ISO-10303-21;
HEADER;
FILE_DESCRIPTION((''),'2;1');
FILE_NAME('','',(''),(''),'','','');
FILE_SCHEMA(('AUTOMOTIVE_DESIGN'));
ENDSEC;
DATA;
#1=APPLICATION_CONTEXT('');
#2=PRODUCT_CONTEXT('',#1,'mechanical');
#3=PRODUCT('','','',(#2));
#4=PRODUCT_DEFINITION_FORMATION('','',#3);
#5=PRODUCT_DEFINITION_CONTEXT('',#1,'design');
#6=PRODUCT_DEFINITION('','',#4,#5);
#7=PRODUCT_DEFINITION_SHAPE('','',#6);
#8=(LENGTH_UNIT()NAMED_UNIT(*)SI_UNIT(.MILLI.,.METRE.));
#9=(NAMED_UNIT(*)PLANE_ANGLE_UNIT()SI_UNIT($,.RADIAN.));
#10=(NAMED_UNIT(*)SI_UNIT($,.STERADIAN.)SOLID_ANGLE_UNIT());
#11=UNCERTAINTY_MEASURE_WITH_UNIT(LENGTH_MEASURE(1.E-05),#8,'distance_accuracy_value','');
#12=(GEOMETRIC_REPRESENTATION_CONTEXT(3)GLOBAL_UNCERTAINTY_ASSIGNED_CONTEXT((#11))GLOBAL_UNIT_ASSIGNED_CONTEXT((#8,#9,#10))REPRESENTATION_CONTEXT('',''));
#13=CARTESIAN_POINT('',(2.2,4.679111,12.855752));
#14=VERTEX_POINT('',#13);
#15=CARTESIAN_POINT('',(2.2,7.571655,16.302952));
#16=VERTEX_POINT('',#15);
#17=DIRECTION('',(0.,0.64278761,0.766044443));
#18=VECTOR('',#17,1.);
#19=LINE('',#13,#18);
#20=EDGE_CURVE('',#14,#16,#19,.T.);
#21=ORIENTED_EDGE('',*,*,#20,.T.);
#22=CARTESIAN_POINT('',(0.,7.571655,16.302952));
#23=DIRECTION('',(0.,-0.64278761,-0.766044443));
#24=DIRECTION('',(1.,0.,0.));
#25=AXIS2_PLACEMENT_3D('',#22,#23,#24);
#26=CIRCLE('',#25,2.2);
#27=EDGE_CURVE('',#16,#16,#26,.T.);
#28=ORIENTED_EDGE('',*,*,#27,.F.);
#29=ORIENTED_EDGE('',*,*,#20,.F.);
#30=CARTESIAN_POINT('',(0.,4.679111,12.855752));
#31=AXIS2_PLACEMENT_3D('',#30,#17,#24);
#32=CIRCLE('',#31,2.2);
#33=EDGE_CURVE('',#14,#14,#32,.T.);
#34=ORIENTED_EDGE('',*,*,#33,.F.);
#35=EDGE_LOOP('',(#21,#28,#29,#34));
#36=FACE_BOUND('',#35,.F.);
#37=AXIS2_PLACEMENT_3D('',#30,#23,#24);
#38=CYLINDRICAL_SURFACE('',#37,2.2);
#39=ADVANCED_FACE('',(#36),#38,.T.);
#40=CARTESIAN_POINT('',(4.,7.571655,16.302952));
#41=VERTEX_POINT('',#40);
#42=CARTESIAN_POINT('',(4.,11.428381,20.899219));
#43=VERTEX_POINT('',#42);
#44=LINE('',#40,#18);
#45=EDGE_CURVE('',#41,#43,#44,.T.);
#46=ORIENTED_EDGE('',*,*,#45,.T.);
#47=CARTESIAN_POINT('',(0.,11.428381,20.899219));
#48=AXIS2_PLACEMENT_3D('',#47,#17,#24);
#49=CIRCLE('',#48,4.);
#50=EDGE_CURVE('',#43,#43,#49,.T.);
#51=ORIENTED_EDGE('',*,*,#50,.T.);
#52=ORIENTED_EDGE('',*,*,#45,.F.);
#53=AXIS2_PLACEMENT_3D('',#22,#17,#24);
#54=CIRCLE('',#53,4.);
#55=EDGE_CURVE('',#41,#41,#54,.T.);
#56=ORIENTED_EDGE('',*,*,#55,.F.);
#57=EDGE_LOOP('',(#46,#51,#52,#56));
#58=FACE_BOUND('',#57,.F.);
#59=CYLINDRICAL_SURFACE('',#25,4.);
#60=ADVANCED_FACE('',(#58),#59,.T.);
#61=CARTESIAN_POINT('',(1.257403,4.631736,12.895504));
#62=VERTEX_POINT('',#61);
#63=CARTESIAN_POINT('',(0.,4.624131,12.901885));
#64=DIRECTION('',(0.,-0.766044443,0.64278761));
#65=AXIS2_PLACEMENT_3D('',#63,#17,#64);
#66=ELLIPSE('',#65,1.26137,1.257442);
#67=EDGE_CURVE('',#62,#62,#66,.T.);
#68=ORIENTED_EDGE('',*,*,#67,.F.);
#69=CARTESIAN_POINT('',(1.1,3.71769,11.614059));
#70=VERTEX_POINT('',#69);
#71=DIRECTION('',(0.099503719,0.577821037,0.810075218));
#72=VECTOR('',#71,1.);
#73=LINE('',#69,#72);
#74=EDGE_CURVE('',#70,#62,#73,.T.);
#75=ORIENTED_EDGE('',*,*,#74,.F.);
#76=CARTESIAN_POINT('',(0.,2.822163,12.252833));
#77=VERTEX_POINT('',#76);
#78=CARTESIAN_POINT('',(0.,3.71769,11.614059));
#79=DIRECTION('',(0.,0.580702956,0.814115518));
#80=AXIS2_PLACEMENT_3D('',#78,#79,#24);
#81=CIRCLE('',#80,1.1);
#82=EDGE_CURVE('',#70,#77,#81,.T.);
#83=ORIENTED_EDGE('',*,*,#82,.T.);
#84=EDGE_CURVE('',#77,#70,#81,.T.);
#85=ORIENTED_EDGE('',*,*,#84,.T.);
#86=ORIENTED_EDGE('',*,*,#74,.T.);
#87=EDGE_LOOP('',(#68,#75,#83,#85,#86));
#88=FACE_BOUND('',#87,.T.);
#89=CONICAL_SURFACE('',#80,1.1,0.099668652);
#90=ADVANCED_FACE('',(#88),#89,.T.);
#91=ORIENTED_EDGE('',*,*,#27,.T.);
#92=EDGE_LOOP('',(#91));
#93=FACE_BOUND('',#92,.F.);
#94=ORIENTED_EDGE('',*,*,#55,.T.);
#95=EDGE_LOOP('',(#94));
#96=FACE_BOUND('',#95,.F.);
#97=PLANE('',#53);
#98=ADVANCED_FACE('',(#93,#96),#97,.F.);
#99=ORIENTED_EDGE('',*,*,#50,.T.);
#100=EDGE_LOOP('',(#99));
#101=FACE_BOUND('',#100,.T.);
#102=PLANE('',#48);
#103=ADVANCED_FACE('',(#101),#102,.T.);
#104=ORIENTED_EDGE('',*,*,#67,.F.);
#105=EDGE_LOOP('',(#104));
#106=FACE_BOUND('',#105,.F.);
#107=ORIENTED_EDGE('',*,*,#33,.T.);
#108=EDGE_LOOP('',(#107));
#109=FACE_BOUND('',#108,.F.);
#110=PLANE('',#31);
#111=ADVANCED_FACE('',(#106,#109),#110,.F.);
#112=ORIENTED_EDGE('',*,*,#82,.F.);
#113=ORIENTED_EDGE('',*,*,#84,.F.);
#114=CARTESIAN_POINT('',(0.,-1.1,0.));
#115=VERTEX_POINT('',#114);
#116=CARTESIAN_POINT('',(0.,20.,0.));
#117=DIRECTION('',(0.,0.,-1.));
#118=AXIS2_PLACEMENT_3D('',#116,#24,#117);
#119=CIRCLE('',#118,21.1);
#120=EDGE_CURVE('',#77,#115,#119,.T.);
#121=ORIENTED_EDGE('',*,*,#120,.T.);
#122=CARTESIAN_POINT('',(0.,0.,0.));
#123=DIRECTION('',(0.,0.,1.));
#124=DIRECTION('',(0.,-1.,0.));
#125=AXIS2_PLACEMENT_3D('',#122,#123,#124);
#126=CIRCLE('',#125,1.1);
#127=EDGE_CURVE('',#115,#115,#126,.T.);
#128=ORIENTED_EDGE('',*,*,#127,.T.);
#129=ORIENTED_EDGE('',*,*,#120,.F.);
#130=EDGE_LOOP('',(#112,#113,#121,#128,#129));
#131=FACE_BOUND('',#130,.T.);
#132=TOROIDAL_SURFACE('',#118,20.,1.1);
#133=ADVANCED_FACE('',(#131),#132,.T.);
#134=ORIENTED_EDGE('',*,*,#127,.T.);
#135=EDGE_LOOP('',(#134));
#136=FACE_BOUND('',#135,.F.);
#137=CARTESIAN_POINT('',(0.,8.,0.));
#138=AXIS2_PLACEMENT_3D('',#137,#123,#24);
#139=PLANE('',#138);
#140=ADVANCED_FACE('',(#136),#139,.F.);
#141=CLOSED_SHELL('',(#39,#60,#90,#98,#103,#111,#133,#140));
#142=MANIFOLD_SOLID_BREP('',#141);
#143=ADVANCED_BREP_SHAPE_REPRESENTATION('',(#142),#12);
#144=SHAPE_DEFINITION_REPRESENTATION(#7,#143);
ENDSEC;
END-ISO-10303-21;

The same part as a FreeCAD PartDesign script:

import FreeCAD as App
import Part
import Sketcher
from FreeCAD import Vector
Q = App.Units.Quantity


def add_polygon(sketch, points):
    """Adds a closed chain of lines whose ends are joined by coincident constraints."""
    first, n = sketch.GeometryCount, len(points)
    for a, b in zip(points, points[1:] + points[:1]):
        sketch.addGeometry(Part.LineSegment(App.Vector(*a, 0), App.Vector(*b, 0)), False)
    for i in range(n):
        sketch.addConstraint(Sketcher.Constraint("Coincident", first + i, 2, first + (i + 1) % n, 1))

doc = App.newDocument("Part")
params = doc.addObject("Spreadsheet::Sheet", "Params")
for row, (alias, value) in enumerate([
    ("sketch1_height", "2 mm"),
    ("sketch1_width", "1.1 mm"),
    ("sketch1_width2", "1.3 mm"),
    ("revolution_angle", "360 deg"),
    ("sketch2_width", "10 mm"),
    ("sketch2_height", "24 mm"),
    ("pad1_length", "22 mm"),
    ("sketch3_width", "10 mm"),
    ("sketch3_height", "24 mm"),
    ("pad2_length", "22 mm"),
    ("sketch4_diameter", "2.2 mm"),
    ("revolution2_angle", "360 deg"),
    ("sketch5_diameter", "8 mm"),
    ("pad3_length", "6 mm"),
    ("sketch6_diameter", "4.4 mm"),
    ("pad4_length", "10 mm"),
], start=1):
    params.set(f"A{row}", alias)
    params.set(f"B{row}", "=" + value)
    params.setAlias(f"B{row}", alias)

body = doc.addObject("PartDesign::Body", "Body")

sketch1 = body.newObject("Sketcher::SketchObject", "Sketch")
sketch1.AttachmentSupport = (doc.getObject("XZ_Plane"), [""])
sketch1.MapMode = "FlatFace"
add_polygon(sketch1, [(0, 0), (1.1, 0), (1.3, 2), (0, 2)])
sketch1.addConstraint([
    Sketcher.Constraint("Horizontal", 0),
    Sketcher.Constraint("Horizontal", 2),
    Sketcher.Constraint("Vertical", 3),
    Sketcher.Constraint("Coincident", 3, 2, -1, 1),
    Sketcher.Constraint("DistanceY", 3, 2, 3, 1, Q("2 mm")),
    Sketcher.Constraint("DistanceX", 0, 1, 0, 2, Q("1.1 mm")),
    Sketcher.Constraint("DistanceX", 2, 2, 2, 1, Q("1.3 mm")),
])
sketch1.setExpression("Constraints[8]", "Params.sketch1_height")
sketch1.setExpression("Constraints[9]", "Params.sketch1_width")
sketch1.setExpression("Constraints[10]", "Params.sketch1_width2")
revolution = body.newObject("PartDesign::Revolution", "Revolution")
revolution.Profile = sketch1
revolution.ReferenceAxis = (sketch1, ["V_Axis"])
revolution.setExpression("Angle", "Params.revolution_angle")
body2 = doc.addObject("PartDesign::Body", "Body001")
doc.recompute()

body.Placement = App.Placement(Vector(0, 0, 0), App.Rotation(Vector(1, 0, 0), 324.5))
boolean = body2.newObject("PartDesign::Boolean", "Boolean")
boolean.Type = "Fuse"
boolean.addObjects([body])
body3 = doc.addObject("PartDesign::Body", "Body002")
doc.recompute()

body2.Placement = App.Placement(Vector(0, 3.71769, 11.614059), App.Rotation(Vector(0, 0, 1), 0))
boolean2 = body3.newObject("PartDesign::Boolean", "Boolean001")
boolean2.Type = "Fuse"
boolean2.addObjects([body2])
body4 = doc.addObject("PartDesign::Body", "Body003")

sketch2 = body4.newObject("Sketcher::SketchObject", "Sketch001")
sketch2.AttachmentSupport = (doc.getObject("XY_Plane003"), [""])
sketch2.MapMode = "FlatFace"
add_polygon(sketch2, [(0, 24), (0, 0), (10, 0), (10, 24)])
sketch2.addConstraint([
    Sketcher.Constraint("Vertical", 0),
    Sketcher.Constraint("Horizontal", 1),
    Sketcher.Constraint("Vertical", 2),
    Sketcher.Constraint("Horizontal", 3),
    Sketcher.Constraint("Coincident", 0, 2, -1, 1),
    Sketcher.Constraint("DistanceX", 1, 1, 1, 2, Q("10 mm")),
    Sketcher.Constraint("DistanceY", 0, 2, 0, 1, Q("24 mm")),
])
sketch2.setExpression("Constraints[9]", "Params.sketch2_width")
sketch2.setExpression("Constraints[10]", "Params.sketch2_height")
pad1 = body4.newObject("PartDesign::Pad", "Pad")
pad1.Profile = sketch2
pad1.setExpression("Length", "Params.pad1_length")
body5 = doc.addObject("PartDesign::Body", "Body004")
doc.recompute()

body4.Placement = App.Placement(Vector(0, 0, 0), App.Rotation(Vector(1, 0, 0), 324.5))
boolean3 = body5.newObject("PartDesign::Boolean", "Boolean002")
boolean3.Type = "Fuse"
boolean3.addObjects([body4])
body6 = doc.addObject("PartDesign::Body", "Body005")
doc.recompute()

body5.Placement = App.Placement(Vector(-5, 0.461228, 13.936871), App.Rotation(Vector(0, 0, 1), 0))
boolean4 = body6.newObject("PartDesign::Boolean", "Boolean003")
boolean4.Type = "Fuse"
boolean4.addObjects([body5])
body7 = doc.addObject("PartDesign::Body", "Body006")

sketch3 = body7.newObject("Sketcher::SketchObject", "Sketch002")
sketch3.AttachmentSupport = (doc.getObject("XY_Plane006"), [""])
sketch3.MapMode = "FlatFace"
add_polygon(sketch3, [(-5, 20), (-5, -4), (5, -4), (5, 20)])
sketch3.addConstraint([
    Sketcher.Constraint("Vertical", 0),
    Sketcher.Constraint("Horizontal", 1),
    Sketcher.Constraint("Vertical", 2),
    Sketcher.Constraint("Horizontal", 3),
    Sketcher.Constraint("DistanceX", 1, 1, 1, 2, Q("10 mm")),
    Sketcher.Constraint("DistanceY", 0, 2, 0, 1, Q("24 mm")),
    Sketcher.Constraint("DistanceX", 0, 2, -1, 1, Q("5 mm")),
    Sketcher.Constraint("DistanceY", 0, 2, -1, 1, Q("4 mm")),
])
sketch3.setExpression("Constraints[8]", "Params.sketch3_width")
sketch3.setExpression("Constraints[9]", "Params.sketch3_height")
pad2 = body7.newObject("PartDesign::Pad", "Pad001")
pad2.Profile = sketch3
pad2.setExpression("Length", "Params.pad2_length")
body8 = doc.addObject("PartDesign::Body", "Body007")

sketch4 = body8.newObject("Sketcher::SketchObject", "Sketch003")
sketch4.AttachmentSupport = (doc.getObject("XZ_Plane007"), [""])
sketch4.MapMode = "FlatFace"
sketch4.addGeometry(Part.Circle(Vector(20, 0, 0), Vector(0, 0, 1), 1.1), False)
sketch4.addConstraint([
    Sketcher.Constraint("PointOnObject", 0, 3, -1),
    Sketcher.Constraint("Diameter", 0, Q("2.2 mm")),
    Sketcher.Constraint("DistanceX", -1, 1, 0, 3, Q("20 mm")),
])
sketch4.setExpression("Constraints[1]", "Params.sketch4_diameter")
revolution2 = body8.newObject("PartDesign::Revolution", "Revolution001")
revolution2.Profile = sketch4
revolution2.ReferenceAxis = (sketch4, ["V_Axis"])
revolution2.setExpression("Angle", "Params.revolution2_angle")
body9 = doc.addObject("PartDesign::Body", "Body008")
doc.recompute()

body8.Placement = App.Placement(Vector(0, 0, 0), App.Rotation(Vector(0, 1, 0), 90))
boolean5 = body9.newObject("PartDesign::Boolean", "Boolean004")
boolean5.Type = "Fuse"
boolean5.addObjects([body8])
body10 = doc.addObject("PartDesign::Body", "Body009")
doc.recompute()

body9.Placement = App.Placement(Vector(0, 20, 0), App.Rotation(Vector(0, 0, 1), 0))
boolean6 = body10.newObject("PartDesign::Boolean", "Boolean005")
boolean6.Type = "Fuse"
boolean6.addObjects([body9])
doc.recompute()

boolean7 = body10.newObject("PartDesign::Boolean", "Boolean006")
boolean7.Type = "Common"
boolean7.addObjects([body7])
doc.recompute()

boolean8 = body10.newObject("PartDesign::Boolean", "Boolean007")
boolean8.Type = "Cut"
boolean8.addObjects([body6])
body11 = doc.addObject("PartDesign::Body", "Body010")

sketch5 = body11.newObject("Sketcher::SketchObject", "Sketch004")
sketch5.AttachmentSupport = (doc.getObject("XY_Plane010"), [""])
sketch5.MapMode = "FlatFace"
sketch5.addGeometry(Part.Circle(Vector(0, 0, 0), Vector(0, 0, 1), 4), False)
sketch5.addConstraint([
    Sketcher.Constraint("Coincident", 0, 3, -1, 1),
    Sketcher.Constraint("Diameter", 0, Q("8 mm")),
])
sketch5.setExpression("Constraints[1]", "Params.sketch5_diameter")
pad3 = body11.newObject("PartDesign::Pad", "Pad002")
pad3.Profile = sketch5
pad3.setExpression("Length", "Params.pad3_length")
body12 = doc.addObject("PartDesign::Body", "Body011")
doc.recompute()

body11.Placement = App.Placement(Vector(0, 0, 0), App.Rotation(Vector(1, 0, 0), 320))
boolean9 = body12.newObject("PartDesign::Boolean", "Boolean008")
boolean9.Type = "Fuse"
boolean9.addObjects([body11])
body13 = doc.addObject("PartDesign::Body", "Body012")
doc.recompute()

body12.Placement = App.Placement(Vector(0, 7.571655, 16.302952), App.Rotation(Vector(0, 0, 1), 0))
boolean10 = body13.newObject("PartDesign::Boolean", "Boolean009")
boolean10.Type = "Fuse"
boolean10.addObjects([body12])
body14 = doc.addObject("PartDesign::Body", "Body013")

sketch6 = body14.newObject("Sketcher::SketchObject", "Sketch005")
sketch6.AttachmentSupport = (doc.getObject("XY_Plane013"), [""])
sketch6.MapMode = "FlatFace"
sketch6.addGeometry(Part.Circle(Vector(0, 0, 0), Vector(0, 0, 1), 2.2), False)
sketch6.addConstraint([
    Sketcher.Constraint("Coincident", 0, 3, -1, 1),
    Sketcher.Constraint("Diameter", 0, Q("4.4 mm")),
])
sketch6.setExpression("Constraints[1]", "Params.sketch6_diameter")
pad4 = body14.newObject("PartDesign::Pad", "Pad003")
pad4.Profile = sketch6
pad4.setExpression("Length", "Params.pad4_length")
body15 = doc.addObject("PartDesign::Body", "Body014")
doc.recompute()

body14.Placement = App.Placement(Vector(0, 0, 0), App.Rotation(Vector(1, 0, 0), 320))
boolean11 = body15.newObject("PartDesign::Boolean", "Boolean010")
boolean11.Type = "Fuse"
boolean11.addObjects([body14])
body16 = doc.addObject("PartDesign::Body", "Body015")
doc.recompute()

body15.Placement = App.Placement(Vector(0, 4.679111, 12.855752), App.Rotation(Vector(0, 0, 1), 0))
boolean12 = body16.newObject("PartDesign::Boolean", "Boolean011")
boolean12.Type = "Fuse"
boolean12.addObjects([body15])
doc.recompute()

boolean13 = body16.newObject("PartDesign::Boolean", "Boolean012")
boolean13.Type = "Fuse"
boolean13.addObjects([body3])
doc.recompute()

boolean14 = body16.newObject("PartDesign::Boolean", "Boolean013")
boolean14.Type = "Fuse"
boolean14.addObjects([body10])
doc.recompute()

boolean15 = body16.newObject("PartDesign::Boolean", "Boolean014")
boolean15.Type = "Fuse"
boolean15.addObjects([body13])

doc.recompute()
